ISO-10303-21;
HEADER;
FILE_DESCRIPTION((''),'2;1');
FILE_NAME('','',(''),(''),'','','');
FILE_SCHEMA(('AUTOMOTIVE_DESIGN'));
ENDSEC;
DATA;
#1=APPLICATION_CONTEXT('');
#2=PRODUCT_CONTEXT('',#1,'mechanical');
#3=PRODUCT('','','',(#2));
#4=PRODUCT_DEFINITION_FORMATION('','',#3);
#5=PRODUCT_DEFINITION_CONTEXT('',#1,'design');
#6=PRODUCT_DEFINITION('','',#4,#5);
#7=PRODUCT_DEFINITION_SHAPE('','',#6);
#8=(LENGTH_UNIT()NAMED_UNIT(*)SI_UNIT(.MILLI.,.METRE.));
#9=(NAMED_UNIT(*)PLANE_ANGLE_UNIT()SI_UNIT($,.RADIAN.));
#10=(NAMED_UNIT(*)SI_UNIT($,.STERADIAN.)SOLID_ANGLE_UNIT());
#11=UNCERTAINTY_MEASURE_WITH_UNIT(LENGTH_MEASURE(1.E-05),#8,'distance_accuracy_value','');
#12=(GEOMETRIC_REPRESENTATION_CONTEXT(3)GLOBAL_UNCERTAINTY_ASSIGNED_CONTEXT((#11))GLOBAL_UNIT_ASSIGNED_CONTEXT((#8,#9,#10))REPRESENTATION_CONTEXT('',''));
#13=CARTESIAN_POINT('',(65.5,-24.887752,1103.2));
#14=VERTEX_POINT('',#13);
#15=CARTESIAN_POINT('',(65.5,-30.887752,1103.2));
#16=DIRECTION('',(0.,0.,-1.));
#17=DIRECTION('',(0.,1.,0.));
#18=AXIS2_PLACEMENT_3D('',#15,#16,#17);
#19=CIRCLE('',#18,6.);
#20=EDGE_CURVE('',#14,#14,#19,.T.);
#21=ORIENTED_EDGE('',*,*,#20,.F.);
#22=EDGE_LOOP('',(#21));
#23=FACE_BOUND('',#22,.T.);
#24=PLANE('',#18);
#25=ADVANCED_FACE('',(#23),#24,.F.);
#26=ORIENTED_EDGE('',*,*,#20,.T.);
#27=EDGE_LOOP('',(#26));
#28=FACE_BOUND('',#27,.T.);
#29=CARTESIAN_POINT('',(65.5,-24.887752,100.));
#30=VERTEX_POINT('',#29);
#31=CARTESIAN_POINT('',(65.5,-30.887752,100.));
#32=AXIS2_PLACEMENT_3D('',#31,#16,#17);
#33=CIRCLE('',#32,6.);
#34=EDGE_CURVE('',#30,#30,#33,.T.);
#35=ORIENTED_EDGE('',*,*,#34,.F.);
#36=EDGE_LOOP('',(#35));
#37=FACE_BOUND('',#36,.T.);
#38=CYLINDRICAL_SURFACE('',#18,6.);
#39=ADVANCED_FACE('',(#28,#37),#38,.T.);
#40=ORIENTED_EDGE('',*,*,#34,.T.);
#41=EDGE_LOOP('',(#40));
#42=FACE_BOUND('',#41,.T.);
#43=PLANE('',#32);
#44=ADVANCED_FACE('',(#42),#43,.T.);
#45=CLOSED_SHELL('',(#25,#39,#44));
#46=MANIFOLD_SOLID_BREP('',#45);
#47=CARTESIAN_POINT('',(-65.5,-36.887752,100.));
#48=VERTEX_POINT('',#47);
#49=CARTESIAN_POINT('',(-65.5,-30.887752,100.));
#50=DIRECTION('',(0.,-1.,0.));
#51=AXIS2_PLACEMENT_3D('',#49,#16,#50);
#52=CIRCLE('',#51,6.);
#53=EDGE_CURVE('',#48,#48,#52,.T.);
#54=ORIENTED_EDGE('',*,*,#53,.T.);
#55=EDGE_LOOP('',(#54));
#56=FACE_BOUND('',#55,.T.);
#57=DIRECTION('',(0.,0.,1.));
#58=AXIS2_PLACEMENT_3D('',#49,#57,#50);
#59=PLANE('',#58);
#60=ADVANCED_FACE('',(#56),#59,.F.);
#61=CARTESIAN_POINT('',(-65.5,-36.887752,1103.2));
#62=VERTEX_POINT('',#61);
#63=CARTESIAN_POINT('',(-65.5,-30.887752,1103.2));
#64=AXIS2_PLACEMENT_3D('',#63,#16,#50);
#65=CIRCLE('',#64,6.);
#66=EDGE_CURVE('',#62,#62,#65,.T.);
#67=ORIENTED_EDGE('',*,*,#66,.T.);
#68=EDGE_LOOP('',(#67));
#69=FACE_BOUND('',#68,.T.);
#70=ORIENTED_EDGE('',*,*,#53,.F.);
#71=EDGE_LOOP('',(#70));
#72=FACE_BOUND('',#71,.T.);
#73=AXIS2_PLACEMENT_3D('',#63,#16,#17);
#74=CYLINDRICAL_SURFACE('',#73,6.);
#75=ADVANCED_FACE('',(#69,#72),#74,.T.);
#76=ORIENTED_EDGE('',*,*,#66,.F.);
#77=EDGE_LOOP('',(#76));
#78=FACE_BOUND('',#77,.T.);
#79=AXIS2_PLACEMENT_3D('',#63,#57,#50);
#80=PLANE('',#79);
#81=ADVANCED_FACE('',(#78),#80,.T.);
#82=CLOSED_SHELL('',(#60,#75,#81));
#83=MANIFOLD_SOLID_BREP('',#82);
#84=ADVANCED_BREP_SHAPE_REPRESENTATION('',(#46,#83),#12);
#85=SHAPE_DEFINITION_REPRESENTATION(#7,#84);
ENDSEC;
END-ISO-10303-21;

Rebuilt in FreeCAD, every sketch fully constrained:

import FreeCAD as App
import Part
import Sketcher

V = App.Vector
Q = App.Units.Quantity

doc = App.newDocument("Part")
body = doc.addObject("PartDesign::Body", "Body")

# Sketch on XY plane
sketch1 = body.newObject("Sketcher::SketchObject", "Sketch")
sketch1.AttachmentSupport = (doc.getObject("XY_Plane"), [""])
sketch1.MapMode = "FlatFace"
sketch1.AttachmentOffset = App.Placement(V(0, 0, 200), App.Rotation())
sketch1.addGeometry(Part.Circle(V(66, -31, 0), V(0, 0, 1), 6), False)
sketch1.addConstraint([
    Sketcher.Constraint("Diameter", 0, Q("12 mm")),
    Sketcher.Constraint("DistanceX", -1, 1, 0, 3, Q("65.5 mm")),
    Sketcher.Constraint("DistanceY", 0, 3, -1, 1, Q("30.887752 mm")),
])
pad1 = body.newObject("PartDesign::Pad", "Pad")
pad1.Profile = sketch1
pad1.Type = "TwoLengths"
pad1.Length = 100
pad1.Length2 = 903.2
pad1.Reversed = True
body2 = doc.addObject("PartDesign::Body", "Body001")

# Sketch on XY plane
sketch2 = body2.newObject("Sketcher::SketchObject", "Sketch001")
sketch2.AttachmentSupport = (doc.getObject("XY_Plane001"), [""])
sketch2.MapMode = "FlatFace"
sketch2.AttachmentOffset = App.Placement(V(0, 0, 200), App.Rotation())
sketch2.addGeometry(Part.Circle(V(-66, -31, 0), V(0, 0, 1), 6), False)
sketch2.addConstraint([
    Sketcher.Constraint("Diameter", 0, Q("12 mm")),
    Sketcher.Constraint("DistanceX", 0, 3, -1, 1, Q("65.5 mm")),
    Sketcher.Constraint("DistanceY", 0, 3, -1, 1, Q("30.887752 mm")),
])
pad2 = body2.newObject("PartDesign::Pad", "Pad001")
pad2.Profile = sketch2
pad2.Type = "TwoLengths"
pad2.Length = 100
pad2.Length2 = 903.2
pad2.Reversed = True

doc.recompute()
